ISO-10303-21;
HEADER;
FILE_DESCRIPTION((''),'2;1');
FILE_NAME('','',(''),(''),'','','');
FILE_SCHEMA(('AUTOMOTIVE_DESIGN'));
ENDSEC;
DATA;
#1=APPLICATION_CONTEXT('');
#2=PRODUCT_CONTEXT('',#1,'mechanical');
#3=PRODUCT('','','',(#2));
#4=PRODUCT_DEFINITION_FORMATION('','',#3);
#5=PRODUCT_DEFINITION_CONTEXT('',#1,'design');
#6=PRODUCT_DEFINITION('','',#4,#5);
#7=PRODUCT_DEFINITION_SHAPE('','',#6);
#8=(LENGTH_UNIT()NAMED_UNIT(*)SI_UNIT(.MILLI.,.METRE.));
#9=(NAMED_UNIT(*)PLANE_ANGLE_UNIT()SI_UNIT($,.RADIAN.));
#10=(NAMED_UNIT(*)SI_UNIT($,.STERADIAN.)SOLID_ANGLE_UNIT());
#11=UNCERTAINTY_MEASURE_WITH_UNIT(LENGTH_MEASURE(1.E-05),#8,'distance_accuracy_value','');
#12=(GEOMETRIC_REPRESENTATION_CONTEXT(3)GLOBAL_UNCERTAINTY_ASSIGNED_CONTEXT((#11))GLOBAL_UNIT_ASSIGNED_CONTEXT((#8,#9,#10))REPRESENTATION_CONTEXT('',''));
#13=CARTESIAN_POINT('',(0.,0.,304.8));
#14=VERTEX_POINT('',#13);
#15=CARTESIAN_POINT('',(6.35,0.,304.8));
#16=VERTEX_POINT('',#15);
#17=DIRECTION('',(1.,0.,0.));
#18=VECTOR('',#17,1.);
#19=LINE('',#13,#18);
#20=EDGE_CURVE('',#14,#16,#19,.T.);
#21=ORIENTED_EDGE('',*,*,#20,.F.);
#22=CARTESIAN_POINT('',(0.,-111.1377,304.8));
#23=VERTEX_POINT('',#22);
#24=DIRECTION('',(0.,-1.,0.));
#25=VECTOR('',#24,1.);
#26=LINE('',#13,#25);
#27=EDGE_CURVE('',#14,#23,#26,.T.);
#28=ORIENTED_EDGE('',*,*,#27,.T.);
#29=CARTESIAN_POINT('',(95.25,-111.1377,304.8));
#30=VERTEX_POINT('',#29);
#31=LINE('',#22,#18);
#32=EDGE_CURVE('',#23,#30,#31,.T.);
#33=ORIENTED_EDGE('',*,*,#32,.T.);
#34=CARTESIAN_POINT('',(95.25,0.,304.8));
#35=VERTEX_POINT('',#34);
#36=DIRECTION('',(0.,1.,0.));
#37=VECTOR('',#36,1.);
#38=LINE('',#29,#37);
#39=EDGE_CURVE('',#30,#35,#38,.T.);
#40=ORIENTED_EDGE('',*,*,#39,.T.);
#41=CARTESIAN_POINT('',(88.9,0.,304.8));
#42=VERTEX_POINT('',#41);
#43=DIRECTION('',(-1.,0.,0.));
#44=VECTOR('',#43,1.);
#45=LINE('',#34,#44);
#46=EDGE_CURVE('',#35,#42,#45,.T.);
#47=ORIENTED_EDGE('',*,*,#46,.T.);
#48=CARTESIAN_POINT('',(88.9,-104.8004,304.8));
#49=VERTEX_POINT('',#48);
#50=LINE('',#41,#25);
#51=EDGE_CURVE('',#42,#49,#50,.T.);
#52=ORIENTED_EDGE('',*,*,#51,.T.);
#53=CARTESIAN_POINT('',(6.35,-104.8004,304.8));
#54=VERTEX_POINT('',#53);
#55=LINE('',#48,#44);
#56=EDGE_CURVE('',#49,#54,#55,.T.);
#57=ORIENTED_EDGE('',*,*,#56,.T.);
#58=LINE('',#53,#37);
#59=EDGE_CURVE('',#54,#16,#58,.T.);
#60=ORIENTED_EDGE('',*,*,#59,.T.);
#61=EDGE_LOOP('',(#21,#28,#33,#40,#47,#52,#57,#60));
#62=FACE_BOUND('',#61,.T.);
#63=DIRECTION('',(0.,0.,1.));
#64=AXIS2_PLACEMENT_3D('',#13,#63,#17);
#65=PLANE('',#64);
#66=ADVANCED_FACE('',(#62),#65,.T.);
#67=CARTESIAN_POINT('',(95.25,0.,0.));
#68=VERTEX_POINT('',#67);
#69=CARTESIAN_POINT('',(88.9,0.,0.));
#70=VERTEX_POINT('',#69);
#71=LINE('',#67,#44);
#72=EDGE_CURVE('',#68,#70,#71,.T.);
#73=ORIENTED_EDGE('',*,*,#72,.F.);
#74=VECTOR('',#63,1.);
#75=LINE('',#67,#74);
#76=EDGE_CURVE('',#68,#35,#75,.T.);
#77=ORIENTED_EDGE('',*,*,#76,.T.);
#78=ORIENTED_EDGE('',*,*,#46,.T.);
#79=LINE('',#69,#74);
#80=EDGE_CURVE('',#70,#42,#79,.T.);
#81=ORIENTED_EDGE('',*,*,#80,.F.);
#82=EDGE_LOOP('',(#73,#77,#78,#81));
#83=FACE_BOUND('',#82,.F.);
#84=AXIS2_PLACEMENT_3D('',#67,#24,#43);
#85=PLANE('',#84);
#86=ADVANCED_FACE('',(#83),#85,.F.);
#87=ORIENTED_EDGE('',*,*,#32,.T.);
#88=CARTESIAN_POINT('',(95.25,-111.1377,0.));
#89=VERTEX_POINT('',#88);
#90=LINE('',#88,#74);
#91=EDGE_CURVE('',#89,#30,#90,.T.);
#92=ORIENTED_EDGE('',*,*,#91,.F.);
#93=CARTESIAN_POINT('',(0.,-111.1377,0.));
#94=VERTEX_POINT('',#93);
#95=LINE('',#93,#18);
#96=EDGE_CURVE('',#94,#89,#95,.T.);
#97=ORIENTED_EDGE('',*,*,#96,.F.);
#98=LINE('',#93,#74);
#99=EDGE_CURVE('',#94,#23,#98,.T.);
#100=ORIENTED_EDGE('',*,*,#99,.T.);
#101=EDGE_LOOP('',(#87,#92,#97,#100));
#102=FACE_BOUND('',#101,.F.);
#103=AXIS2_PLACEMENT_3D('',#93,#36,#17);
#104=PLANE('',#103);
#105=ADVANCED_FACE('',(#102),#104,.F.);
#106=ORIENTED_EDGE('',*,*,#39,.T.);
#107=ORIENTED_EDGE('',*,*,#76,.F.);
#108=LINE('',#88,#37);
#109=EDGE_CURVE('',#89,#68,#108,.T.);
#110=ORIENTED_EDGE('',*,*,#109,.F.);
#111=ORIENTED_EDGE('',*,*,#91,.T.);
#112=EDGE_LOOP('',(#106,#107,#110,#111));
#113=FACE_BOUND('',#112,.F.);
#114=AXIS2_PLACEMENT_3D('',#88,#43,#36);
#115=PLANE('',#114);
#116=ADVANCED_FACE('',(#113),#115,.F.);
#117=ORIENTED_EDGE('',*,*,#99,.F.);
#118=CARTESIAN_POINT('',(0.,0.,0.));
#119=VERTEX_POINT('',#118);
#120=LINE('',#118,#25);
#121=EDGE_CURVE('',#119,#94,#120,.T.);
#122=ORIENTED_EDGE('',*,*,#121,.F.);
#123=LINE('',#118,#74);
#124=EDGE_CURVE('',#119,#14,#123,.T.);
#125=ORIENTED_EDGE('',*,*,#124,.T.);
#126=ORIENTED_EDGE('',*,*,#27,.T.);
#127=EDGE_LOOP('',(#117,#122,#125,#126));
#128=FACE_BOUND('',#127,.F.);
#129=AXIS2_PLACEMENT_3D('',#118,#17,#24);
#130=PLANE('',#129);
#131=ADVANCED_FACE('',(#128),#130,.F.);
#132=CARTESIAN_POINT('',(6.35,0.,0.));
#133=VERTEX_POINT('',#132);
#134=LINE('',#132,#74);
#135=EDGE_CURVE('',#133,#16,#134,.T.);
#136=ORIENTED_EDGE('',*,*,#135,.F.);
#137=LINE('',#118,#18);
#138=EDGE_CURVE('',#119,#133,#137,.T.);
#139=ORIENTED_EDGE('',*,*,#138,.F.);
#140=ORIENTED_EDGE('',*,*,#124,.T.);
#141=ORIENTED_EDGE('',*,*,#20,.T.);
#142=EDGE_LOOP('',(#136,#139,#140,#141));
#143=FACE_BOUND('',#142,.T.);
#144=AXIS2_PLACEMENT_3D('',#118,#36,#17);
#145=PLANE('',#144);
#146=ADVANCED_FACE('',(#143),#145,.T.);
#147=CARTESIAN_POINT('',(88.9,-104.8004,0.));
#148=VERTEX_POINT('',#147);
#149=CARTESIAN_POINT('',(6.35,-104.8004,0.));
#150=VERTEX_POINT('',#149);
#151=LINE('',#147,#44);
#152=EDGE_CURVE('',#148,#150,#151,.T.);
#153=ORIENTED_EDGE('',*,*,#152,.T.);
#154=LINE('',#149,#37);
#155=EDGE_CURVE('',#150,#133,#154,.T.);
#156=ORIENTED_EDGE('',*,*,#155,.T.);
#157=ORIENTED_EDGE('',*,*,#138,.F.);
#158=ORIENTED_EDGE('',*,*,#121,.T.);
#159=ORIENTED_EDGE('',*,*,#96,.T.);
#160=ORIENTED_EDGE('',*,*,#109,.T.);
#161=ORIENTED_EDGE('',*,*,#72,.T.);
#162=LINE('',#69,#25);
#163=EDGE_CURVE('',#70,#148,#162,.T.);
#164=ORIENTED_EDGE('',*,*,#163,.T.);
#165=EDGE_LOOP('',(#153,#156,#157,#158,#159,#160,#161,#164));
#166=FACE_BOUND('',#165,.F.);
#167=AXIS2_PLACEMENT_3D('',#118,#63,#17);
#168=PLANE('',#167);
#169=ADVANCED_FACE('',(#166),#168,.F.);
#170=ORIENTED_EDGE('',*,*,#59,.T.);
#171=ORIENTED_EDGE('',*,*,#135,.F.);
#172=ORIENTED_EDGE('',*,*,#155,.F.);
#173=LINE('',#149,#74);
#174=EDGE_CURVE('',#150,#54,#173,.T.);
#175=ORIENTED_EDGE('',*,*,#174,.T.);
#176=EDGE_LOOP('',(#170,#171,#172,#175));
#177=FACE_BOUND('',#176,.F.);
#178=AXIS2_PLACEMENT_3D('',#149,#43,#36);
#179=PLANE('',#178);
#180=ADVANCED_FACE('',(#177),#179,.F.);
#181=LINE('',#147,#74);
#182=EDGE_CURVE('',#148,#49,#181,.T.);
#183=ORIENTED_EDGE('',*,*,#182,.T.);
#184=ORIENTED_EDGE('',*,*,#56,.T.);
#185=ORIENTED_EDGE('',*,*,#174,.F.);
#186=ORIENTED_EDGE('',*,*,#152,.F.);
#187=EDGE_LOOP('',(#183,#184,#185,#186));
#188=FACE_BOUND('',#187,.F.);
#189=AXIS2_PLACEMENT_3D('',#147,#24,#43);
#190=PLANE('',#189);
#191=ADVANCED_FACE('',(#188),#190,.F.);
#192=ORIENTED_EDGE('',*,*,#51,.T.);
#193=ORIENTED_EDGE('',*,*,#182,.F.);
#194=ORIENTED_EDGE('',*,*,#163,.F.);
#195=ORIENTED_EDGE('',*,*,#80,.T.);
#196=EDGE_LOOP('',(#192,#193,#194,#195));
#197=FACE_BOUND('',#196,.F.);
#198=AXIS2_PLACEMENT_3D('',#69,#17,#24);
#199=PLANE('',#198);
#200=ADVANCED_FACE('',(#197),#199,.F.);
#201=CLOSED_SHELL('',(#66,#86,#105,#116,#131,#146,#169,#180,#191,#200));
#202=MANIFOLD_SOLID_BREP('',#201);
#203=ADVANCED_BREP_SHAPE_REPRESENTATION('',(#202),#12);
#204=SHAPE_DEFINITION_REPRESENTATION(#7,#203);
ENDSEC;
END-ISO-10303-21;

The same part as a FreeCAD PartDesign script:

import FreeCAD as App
import Part
import Sketcher
Q = App.Units.Quantity

doc = App.newDocument("Part")
params = doc.addObject("Spreadsheet::Sheet", "Params")
for row, (alias, value) in enumerate([
    ("sketch1_width", "0.25 in"),
    ("sketch1_width2", "3.75 in"),
    ("sketch1_height", "4.126 in"),
    ("pad1_length", "12 in"),
], start=1):
    params.set(f"A{row}", alias)
    params.set(f"B{row}", "=" + value)
    params.setAlias(f"B{row}", alias)

body = doc.addObject("PartDesign::Body", "Body")

sketch1 = body.newObject("Sketcher::SketchObject", "Sketch")
sketch1.AttachmentSupport = (doc.getObject("XY_Plane"), [""])
sketch1.MapMode = "FlatFace"
sketch1.addGeometry([
    Part.LineSegment(App.Vector(6, 0, 0), App.Vector(0, 0, 0)),
    Part.LineSegment(App.Vector(0, 0, 0), App.Vector(0, -111, 0)),
    Part.LineSegment(App.Vector(0, -111, 0), App.Vector(95, -111, 0)),
    Part.LineSegment(App.Vector(95, -111, 0), App.Vector(95, 0, 0)),
    Part.LineSegment(App.Vector(95, 0, 0), App.Vector(89, 0, 0)),
    Part.LineSegment(App.Vector(89, 0, 0), App.Vector(89, -105, 0)),
    Part.LineSegment(App.Vector(89, -105, 0), App.Vector(6, -105, 0)),
    Part.LineSegment(App.Vector(6, -105, 0), App.Vector(6, 0, 0)),
], False)
sketch1.addConstraint([
    Sketcher.Constraint("Coincident", 0, 2, 1, 1),
    Sketcher.Constraint("Coincident", 1, 2, 2, 1),
    Sketcher.Constraint("Coincident", 2, 2, 3, 1),
    Sketcher.Constraint("Coincident", 3, 2, 4, 1),
    Sketcher.Constraint("Coincident", 4, 2, 5, 1),
    Sketcher.Constraint("Coincident", 5, 2, 6, 1),
    Sketcher.Constraint("Coincident", 6, 2, 7, 1),
    Sketcher.Constraint("Coincident", 7, 2, 0, 1),
    Sketcher.Constraint("Horizontal", 0),
    Sketcher.Constraint("Vertical", 1),
    Sketcher.Constraint("Horizontal", 2),
    Sketcher.Constraint("Vertical", 3),
    Sketcher.Constraint("Horizontal", 4),
    Sketcher.Constraint("Vertical", 5),
    Sketcher.Constraint("Horizontal", 6),
    Sketcher.Constraint("Vertical", 7),
    Sketcher.Constraint("Coincident", 0, 2, -1, 1),
    Sketcher.Constraint("PointOnObject", 3, 2, -1),
    Sketcher.Constraint("Equal", 0, 4),
    Sketcher.Constraint("DistanceX", 0, 2, 0, 1, Q("0.25 in")),
    Sketcher.Constraint("DistanceX", 2, 1, 2, 2, Q("3.75 in")),
    Sketcher.Constraint("DistanceY", 5, 2, 5, 1, Q("4.126 in")),
    Sketcher.Constraint("DistanceY", 1, 2, 1, 1, Q("4.3755 in")),
])
sketch1.setExpression("Constraints[19]", "Params.sketch1_width")
sketch1.setExpression("Constraints[20]", "Params.sketch1_width2")
sketch1.setExpression("Constraints[21]", "Params.sketch1_height")
pad1 = body.newObject("PartDesign::Pad", "Pad")
pad1.Profile = sketch1
pad1.setExpression("Length", "Params.pad1_length")

doc.recompute()
